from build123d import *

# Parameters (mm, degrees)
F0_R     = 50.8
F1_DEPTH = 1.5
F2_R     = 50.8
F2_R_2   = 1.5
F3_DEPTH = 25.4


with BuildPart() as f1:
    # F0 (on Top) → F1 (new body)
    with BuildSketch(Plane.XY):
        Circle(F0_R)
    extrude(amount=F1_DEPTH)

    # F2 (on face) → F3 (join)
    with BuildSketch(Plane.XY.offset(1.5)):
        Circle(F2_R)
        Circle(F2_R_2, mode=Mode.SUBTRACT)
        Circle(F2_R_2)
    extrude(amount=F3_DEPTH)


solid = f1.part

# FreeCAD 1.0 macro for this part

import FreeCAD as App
import Part
import Sketcher
Q = App.Units.Quantity

doc = App.newDocument("Part")
body = doc.addObject("PartDesign::Body", "Body")

# Sketch on XY plane
sketch1 = body.newObject("Sketcher::SketchObject", "Sketch")
sketch1.AttachmentSupport = (doc.getObject("XY_Plane"), [""])
sketch1.MapMode = "FlatFace"
sketch1.addGeometry(Part.Circle(App.Vector(0, 0, 0), App.Vector(0, 0, 1), 51), False)
sketch1.addConstraint([
    Sketcher.Constraint("Coincident", 0, 3, -1, 1),
    Sketcher.Constraint("Diameter", 0, Q("4 in")),
])
pad1 = body.newObject("PartDesign::Pad", "Pad")
pad1.Profile = sketch1
pad1.Length = 1.5

# Sketch on XY plane
sketch2 = body.newObject("Sketcher::SketchObject", "Sketch001")
sketch2.AttachmentSupport = (doc.getObject("XY_Plane"), [""])
sketch2.MapMode = "FlatFace"
sketch2.AttachmentOffset = App.Placement(App.Vector(0, 0, 1.5), App.Rotation())
sketch2.addGeometry(Part.Circle(App.Vector(0, 0, 0), App.Vector(0, 0, 1), 51), False)
sketch2.addConstraint([
    Sketcher.Constraint("Coincident", 0, 3, -1, 1),
    Sketcher.Constraint("Diameter", 0, Q("4 in")),
])
pad2 = body.newObject("PartDesign::Pad", "Pad001")
pad2.Profile = sketch2
pad2.Length = Q("1 in")

doc.recompute()
